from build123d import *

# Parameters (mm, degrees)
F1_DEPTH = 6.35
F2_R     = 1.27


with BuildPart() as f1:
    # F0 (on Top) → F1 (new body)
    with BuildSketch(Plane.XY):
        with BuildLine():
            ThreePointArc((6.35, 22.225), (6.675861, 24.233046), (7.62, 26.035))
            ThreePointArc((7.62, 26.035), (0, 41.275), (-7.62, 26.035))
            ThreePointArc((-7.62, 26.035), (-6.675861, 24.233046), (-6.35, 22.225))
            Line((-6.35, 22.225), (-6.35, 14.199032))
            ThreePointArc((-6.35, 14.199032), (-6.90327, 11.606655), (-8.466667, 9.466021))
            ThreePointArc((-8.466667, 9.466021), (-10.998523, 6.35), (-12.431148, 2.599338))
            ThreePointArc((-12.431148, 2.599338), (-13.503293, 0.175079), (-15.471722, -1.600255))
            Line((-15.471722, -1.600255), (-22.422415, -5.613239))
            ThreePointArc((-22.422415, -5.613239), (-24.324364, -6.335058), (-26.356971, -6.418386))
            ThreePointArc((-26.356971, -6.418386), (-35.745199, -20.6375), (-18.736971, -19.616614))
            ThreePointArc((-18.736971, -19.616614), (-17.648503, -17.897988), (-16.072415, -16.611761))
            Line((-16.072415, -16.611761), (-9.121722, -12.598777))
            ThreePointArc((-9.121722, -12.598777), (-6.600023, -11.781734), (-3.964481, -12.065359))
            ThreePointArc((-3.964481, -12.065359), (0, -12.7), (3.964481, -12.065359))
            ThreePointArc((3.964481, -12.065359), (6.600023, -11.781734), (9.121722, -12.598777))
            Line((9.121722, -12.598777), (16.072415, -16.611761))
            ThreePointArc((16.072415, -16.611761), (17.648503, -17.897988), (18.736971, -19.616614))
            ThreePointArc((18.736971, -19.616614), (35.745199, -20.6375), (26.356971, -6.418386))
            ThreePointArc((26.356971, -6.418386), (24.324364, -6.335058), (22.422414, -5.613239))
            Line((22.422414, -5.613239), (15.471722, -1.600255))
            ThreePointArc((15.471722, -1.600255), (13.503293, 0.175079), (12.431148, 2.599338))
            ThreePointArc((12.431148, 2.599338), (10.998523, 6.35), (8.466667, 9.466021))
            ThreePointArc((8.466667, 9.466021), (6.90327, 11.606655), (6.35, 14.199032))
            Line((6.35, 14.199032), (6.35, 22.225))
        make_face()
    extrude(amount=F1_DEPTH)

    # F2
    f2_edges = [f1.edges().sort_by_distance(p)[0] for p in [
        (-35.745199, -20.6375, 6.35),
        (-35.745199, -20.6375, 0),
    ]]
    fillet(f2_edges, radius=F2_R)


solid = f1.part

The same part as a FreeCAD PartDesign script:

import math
import FreeCAD as App
import Part
import Sketcher
from FreeCAD import Vector
Q = App.Units.Quantity


def edges_at(feature, points):
    """Names of the edges that pass closest to the given points."""
    edges = feature.Shape.Edges
    near = lambda p: min(range(len(edges)), key=lambda i: edges[i].distToShape(Part.Vertex(*p))[0])
    return sorted({f"Edge{near(p) + 1}" for p in points})

doc = App.newDocument("Part")
params = doc.addObject("Spreadsheet::Sheet", "Params")
for row, (alias, value) in enumerate([
    ("sketch1_radius", "0.4999999 in"),
    ("sketch1_radius2", "0.25 in"),
    ("sketch1_radius3", "0.2500001 in"),
    ("sketch1_radius4", "0.2499999 in"),
    ("sketch1_radius5", "0.375 in"),
    ("pad1_length", "0.25 in"),
    ("fillet_radius", "0.05 in"),
], start=1):
    params.set(f"A{row}", alias)
    params.set(f"B{row}", "=" + value)
    params.setAlias(f"B{row}", alias)

body = doc.addObject("PartDesign::Body", "Body")

# Sketch on XY plane
sketch1 = doc.addObject("Sketcher::SketchObject", "Sketch")
body.addObject(sketch1)
sketch1.AttachmentSupport = (doc.XY_Plane, [""])
sketch1.MapMode = "FlatFace"
sketch1.addGeometry([
    Part.ArcOfCircle(Part.Circle(Vector(12.700001, 22.225, 0), Vector(0, 0, 1), 6.350001), math.radians(143.130105), math.radians(179.999998)),  # 0
    Part.ArcOfCircle(Part.Circle(Vector(0, 31.75, 0), Vector(0, 0, 1), 9.525), math.radians(-36.869898), math.radians(216.869898)),  # 1
    Part.ArcOfCircle(Part.Circle(Vector(-12.700001, 22.225, 0), Vector(0, 0, 1), 6.350001), math.radians(0.000002), math.radians(36.869895)),  # 2
    Part.LineSegment(Vector(-6.35, 22.225, 0), Vector(-6.35, 14.199032, 0)),  # 3
    Part.ArcOfCircle(Part.Circle(Vector(-12.700003, 14.199033, 0), Vector(0, 0, 1), 6.350003), math.radians(-48.189677), math.radians(-0.000011)),  # 4
    Part.ArcOfCircle(Part.Circle(Vector(-0.000005, 0.000003, 0), Vector(0, 0, 1), 12.699995), math.radians(131.81031), math.radians(168.189694)),  # 5
    Part.ArcOfCircle(Part.Circle(Vector(-18.646724, 3.899007, 0), Vector(0, 0, 1), 6.350002), math.radians(-59.99999), math.radians(-11.810316)),  # 6
    Part.LineSegment(Vector(-15.471722, -1.600255, 0), Vector(-22.422415, -5.613239, 0)),  # 7
    Part.ArcOfCircle(Part.Circle(Vector(-25.597412, -0.113984, 0), Vector(0, 0, 1), 6.349993), math.radians(-96.869922), math.radians(-59.999992)),  # 8
    Part.ArcOfCircle(Part.Circle(Vector(-27.496306, -15.875, 0), Vector(0, 0, 1), 9.525), math.radians(83.130101), math.radians(336.869896)),  # 9
    Part.ArcOfCircle(Part.Circle(Vector(-12.897416, -22.111019, 0), Vector(0, 0, 1), 6.349997), math.radians(120.000006), math.radians(156.869922)),  # 10
    Part.LineSegment(Vector(-16.072415, -16.611761, 0), Vector(-9.121722, -12.598777, 0)),  # 11
    Part.ArcOfCircle(Part.Circle(Vector(-5.946722, -18.098036, 0), Vector(0, 0, 1), 6.349998), math.radians(71.810302), math.radians(120.000009)),  # 12
    Part.ArcOfCircle(Part.Circle(Vector(0, -0.000002, 0), Vector(0, 0, 1), 12.699998), math.radians(-108.189686), math.radians(-71.810314)),  # 13
    Part.ArcOfCircle(Part.Circle(Vector(5.946722, -18.098036, 0), Vector(0, 0, 1), 6.349998), math.radians(59.999991), math.radians(108.189698)),  # 14
    Part.LineSegment(Vector(9.121722, -12.598777, 0), Vector(16.072415, -16.611761, 0)),  # 15
    Part.ArcOfCircle(Part.Circle(Vector(12.897416, -22.111019, 0), Vector(0, 0, 1), 6.349997), math.radians(23.130078), math.radians(59.999994)),  # 16
    Part.ArcOfCircle(Part.Circle(Vector(27.496306, -15.875, 0), Vector(0, 0, 1), 9.525), math.radians(-156.869896), math.radians(96.869899)),  # 17
    Part.ArcOfCircle(Part.Circle(Vector(25.597413, -0.113979, 0), Vector(0, 0, 1), 6.349998), math.radians(-119.999995), math.radians(-83.130085)),  # 18
    Part.LineSegment(Vector(22.422414, -5.613239, 0), Vector(15.471722, -1.600255, 0)),  # 19
    Part.ArcOfCircle(Part.Circle(Vector(18.646724, 3.899007, 0), Vector(0, 0, 1), 6.350002), math.radians(-168.189684), math.radians(-120.00001)),  # 20
    Part.ArcOfCircle(Part.Circle(Vector(0.000005, 0.000003, 0), Vector(0, 0, 1), 12.699995), math.radians(11.810306), math.radians(48.18969)),  # 21
    Part.ArcOfCircle(Part.Circle(Vector(12.700003, 14.199033, 0), Vector(0, 0, 1), 6.350003), math.radians(-179.999989), math.radians(-131.810323)),  # 22
    Part.LineSegment(Vector(6.35, 14.199032, 0), Vector(6.35, 22.225, 0)),  # 23
], False)
sketch1.addConstraint([
    Sketcher.Constraint("Tangent", 0, 1, 1, 1),
    Sketcher.Constraint("Tangent", 1, 2, 2, 2),
    Sketcher.Constraint("Tangent", 2, 1, 3, 1),
    Sketcher.Constraint("Tangent", 3, 2, 4, 2),
    Sketcher.Constraint("Tangent", 4, 1, 5, 1),
    Sketcher.Constraint("Tangent", 5, 2, 6, 2),
    Sketcher.Constraint("Tangent", 6, 1, 7, 1),
    Sketcher.Constraint("Tangent", 7, 2, 8, 2),
    Sketcher.Constraint("Tangent", 8, 1, 9, 1),
    Sketcher.Constraint("Tangent", 9, 2, 10, 2),
    Sketcher.Constraint("Tangent", 10, 1, 11, 1),
    Sketcher.Constraint("Tangent", 11, 2, 12, 2),
    Sketcher.Constraint("Tangent", 12, 1, 13, 1),
    Sketcher.Constraint("Tangent", 13, 2, 14, 2),
    Sketcher.Constraint("Tangent", 14, 1, 15, 1),
    Sketcher.Constraint("Tangent", 15, 2, 16, 2),
    Sketcher.Constraint("Tangent", 16, 1, 17, 1),
    Sketcher.Constraint("Tangent", 17, 2, 18, 2),
    Sketcher.Constraint("Tangent", 18, 1, 19, 1),
    Sketcher.Constraint("Tangent", 19, 2, 20, 2),
    Sketcher.Constraint("Tangent", 20, 1, 21, 1),
    Sketcher.Constraint("Tangent", 21, 2, 22, 2),
    Sketcher.Constraint("Tangent", 22, 1, 23, 1),
    Sketcher.Constraint("Tangent", 23, 2, 0, 2),
    Sketcher.Constraint("Vertical", 3),
    Sketcher.Constraint("Vertical", 23),
    Sketcher.Constraint("Coincident", 5, 3, -1, 1),
    Sketcher.Constraint("Coincident", 13, 3, -1, 1),
    Sketcher.Constraint("Coincident", 21, 3, -1, 1),
    Sketcher.Constraint("Equal", 0, 2),
    Sketcher.Constraint("Equal", 4, 6),
    Sketcher.Constraint("Equal", 1, 9),
    Sketcher.Constraint("Equal", 10, 12),
    Sketcher.Constraint("Equal", 12, 14),
    Sketcher.Constraint("Equal", 14, 16),
    Sketcher.Constraint("Equal", 9, 17),
    Sketcher.Constraint("Equal", 16, 18),
    Sketcher.Constraint("Equal", 6, 20),
    Sketcher.Constraint("Equal", 5, 21),
    Sketcher.Constraint("Equal", 20, 22),
    Sketcher.Constraint("Symmetric", 0, 3, 2, 3, -2),
    Sketcher.Constraint("Symmetric", 10, 3, 16, 3, -2),
    Sketcher.Constraint("Symmetric", 8, 3, 18, 3, -2),
    Sketcher.Constraint("Symmetric", 7, 2, 18, 1, -2),
    Sketcher.Constraint("Parallel", 7, 11),
    Sketcher.Constraint("Parallel", 15, 19),
    Sketcher.Constraint("Equal", 7, 11),
    Sketcher.Constraint("Radius", 13, Q("0.4999999 in")),
    Sketcher.Constraint("Radius", 0, Q("0.25 in")),
    Sketcher.Constraint("Radius", 4, Q("0.2500001 in")),
    Sketcher.Constraint("Radius", 10, Q("0.2499999 in")),
    Sketcher.Constraint("Angle", 7, Q("-150.000003 deg")),
    Sketcher.Constraint("Radius", 1, Q("0.375 in")),
    Sketcher.Constraint("DistanceX", 2, 3, 0, 3, Q("1.0000001 in")),
    Sketcher.Constraint("DistanceY", 9, 3, 2, 3, Q("1.5 in")),
    Sketcher.Constraint("DistanceX", 8, 3, 10, 3, Q("0.4999999 in")),
    Sketcher.Constraint("DistanceY", -1, 1, 1, 3, Q("1.25 in")),
    Sketcher.Constraint("Radius", 5, Q("12.699995 mm")),
    Sketcher.Constraint("DistanceX", 9, 3, 5, 3, Q("27.496302 mm")),
])
sketch1.setExpression("Constraints[47]", "Params.sketch1_radius")
sketch1.setExpression("Constraints[48]", "Params.sketch1_radius2")
sketch1.setExpression("Constraints[49]", "Params.sketch1_radius3")
sketch1.setExpression("Constraints[50]", "Params.sketch1_radius4")
sketch1.setExpression("Constraints[52]", "Params.sketch1_radius5")
pad1 = doc.addObject("PartDesign::Pad", "Pad")
body.addObject(pad1)
pad1.Profile = sketch1
pad1.setExpression("Length", "Params.pad1_length")
doc.recompute()

fillet = doc.addObject("PartDesign::Fillet", "Fillet")
body.addObject(fillet)
fillet.Base = (pad1, edges_at(pad1, [(-35.745, -20.637, 6.35), (-35.745, -20.637, 0)]))
fillet.setExpression("Radius", "Params.fillet_radius")

doc.recompute()
